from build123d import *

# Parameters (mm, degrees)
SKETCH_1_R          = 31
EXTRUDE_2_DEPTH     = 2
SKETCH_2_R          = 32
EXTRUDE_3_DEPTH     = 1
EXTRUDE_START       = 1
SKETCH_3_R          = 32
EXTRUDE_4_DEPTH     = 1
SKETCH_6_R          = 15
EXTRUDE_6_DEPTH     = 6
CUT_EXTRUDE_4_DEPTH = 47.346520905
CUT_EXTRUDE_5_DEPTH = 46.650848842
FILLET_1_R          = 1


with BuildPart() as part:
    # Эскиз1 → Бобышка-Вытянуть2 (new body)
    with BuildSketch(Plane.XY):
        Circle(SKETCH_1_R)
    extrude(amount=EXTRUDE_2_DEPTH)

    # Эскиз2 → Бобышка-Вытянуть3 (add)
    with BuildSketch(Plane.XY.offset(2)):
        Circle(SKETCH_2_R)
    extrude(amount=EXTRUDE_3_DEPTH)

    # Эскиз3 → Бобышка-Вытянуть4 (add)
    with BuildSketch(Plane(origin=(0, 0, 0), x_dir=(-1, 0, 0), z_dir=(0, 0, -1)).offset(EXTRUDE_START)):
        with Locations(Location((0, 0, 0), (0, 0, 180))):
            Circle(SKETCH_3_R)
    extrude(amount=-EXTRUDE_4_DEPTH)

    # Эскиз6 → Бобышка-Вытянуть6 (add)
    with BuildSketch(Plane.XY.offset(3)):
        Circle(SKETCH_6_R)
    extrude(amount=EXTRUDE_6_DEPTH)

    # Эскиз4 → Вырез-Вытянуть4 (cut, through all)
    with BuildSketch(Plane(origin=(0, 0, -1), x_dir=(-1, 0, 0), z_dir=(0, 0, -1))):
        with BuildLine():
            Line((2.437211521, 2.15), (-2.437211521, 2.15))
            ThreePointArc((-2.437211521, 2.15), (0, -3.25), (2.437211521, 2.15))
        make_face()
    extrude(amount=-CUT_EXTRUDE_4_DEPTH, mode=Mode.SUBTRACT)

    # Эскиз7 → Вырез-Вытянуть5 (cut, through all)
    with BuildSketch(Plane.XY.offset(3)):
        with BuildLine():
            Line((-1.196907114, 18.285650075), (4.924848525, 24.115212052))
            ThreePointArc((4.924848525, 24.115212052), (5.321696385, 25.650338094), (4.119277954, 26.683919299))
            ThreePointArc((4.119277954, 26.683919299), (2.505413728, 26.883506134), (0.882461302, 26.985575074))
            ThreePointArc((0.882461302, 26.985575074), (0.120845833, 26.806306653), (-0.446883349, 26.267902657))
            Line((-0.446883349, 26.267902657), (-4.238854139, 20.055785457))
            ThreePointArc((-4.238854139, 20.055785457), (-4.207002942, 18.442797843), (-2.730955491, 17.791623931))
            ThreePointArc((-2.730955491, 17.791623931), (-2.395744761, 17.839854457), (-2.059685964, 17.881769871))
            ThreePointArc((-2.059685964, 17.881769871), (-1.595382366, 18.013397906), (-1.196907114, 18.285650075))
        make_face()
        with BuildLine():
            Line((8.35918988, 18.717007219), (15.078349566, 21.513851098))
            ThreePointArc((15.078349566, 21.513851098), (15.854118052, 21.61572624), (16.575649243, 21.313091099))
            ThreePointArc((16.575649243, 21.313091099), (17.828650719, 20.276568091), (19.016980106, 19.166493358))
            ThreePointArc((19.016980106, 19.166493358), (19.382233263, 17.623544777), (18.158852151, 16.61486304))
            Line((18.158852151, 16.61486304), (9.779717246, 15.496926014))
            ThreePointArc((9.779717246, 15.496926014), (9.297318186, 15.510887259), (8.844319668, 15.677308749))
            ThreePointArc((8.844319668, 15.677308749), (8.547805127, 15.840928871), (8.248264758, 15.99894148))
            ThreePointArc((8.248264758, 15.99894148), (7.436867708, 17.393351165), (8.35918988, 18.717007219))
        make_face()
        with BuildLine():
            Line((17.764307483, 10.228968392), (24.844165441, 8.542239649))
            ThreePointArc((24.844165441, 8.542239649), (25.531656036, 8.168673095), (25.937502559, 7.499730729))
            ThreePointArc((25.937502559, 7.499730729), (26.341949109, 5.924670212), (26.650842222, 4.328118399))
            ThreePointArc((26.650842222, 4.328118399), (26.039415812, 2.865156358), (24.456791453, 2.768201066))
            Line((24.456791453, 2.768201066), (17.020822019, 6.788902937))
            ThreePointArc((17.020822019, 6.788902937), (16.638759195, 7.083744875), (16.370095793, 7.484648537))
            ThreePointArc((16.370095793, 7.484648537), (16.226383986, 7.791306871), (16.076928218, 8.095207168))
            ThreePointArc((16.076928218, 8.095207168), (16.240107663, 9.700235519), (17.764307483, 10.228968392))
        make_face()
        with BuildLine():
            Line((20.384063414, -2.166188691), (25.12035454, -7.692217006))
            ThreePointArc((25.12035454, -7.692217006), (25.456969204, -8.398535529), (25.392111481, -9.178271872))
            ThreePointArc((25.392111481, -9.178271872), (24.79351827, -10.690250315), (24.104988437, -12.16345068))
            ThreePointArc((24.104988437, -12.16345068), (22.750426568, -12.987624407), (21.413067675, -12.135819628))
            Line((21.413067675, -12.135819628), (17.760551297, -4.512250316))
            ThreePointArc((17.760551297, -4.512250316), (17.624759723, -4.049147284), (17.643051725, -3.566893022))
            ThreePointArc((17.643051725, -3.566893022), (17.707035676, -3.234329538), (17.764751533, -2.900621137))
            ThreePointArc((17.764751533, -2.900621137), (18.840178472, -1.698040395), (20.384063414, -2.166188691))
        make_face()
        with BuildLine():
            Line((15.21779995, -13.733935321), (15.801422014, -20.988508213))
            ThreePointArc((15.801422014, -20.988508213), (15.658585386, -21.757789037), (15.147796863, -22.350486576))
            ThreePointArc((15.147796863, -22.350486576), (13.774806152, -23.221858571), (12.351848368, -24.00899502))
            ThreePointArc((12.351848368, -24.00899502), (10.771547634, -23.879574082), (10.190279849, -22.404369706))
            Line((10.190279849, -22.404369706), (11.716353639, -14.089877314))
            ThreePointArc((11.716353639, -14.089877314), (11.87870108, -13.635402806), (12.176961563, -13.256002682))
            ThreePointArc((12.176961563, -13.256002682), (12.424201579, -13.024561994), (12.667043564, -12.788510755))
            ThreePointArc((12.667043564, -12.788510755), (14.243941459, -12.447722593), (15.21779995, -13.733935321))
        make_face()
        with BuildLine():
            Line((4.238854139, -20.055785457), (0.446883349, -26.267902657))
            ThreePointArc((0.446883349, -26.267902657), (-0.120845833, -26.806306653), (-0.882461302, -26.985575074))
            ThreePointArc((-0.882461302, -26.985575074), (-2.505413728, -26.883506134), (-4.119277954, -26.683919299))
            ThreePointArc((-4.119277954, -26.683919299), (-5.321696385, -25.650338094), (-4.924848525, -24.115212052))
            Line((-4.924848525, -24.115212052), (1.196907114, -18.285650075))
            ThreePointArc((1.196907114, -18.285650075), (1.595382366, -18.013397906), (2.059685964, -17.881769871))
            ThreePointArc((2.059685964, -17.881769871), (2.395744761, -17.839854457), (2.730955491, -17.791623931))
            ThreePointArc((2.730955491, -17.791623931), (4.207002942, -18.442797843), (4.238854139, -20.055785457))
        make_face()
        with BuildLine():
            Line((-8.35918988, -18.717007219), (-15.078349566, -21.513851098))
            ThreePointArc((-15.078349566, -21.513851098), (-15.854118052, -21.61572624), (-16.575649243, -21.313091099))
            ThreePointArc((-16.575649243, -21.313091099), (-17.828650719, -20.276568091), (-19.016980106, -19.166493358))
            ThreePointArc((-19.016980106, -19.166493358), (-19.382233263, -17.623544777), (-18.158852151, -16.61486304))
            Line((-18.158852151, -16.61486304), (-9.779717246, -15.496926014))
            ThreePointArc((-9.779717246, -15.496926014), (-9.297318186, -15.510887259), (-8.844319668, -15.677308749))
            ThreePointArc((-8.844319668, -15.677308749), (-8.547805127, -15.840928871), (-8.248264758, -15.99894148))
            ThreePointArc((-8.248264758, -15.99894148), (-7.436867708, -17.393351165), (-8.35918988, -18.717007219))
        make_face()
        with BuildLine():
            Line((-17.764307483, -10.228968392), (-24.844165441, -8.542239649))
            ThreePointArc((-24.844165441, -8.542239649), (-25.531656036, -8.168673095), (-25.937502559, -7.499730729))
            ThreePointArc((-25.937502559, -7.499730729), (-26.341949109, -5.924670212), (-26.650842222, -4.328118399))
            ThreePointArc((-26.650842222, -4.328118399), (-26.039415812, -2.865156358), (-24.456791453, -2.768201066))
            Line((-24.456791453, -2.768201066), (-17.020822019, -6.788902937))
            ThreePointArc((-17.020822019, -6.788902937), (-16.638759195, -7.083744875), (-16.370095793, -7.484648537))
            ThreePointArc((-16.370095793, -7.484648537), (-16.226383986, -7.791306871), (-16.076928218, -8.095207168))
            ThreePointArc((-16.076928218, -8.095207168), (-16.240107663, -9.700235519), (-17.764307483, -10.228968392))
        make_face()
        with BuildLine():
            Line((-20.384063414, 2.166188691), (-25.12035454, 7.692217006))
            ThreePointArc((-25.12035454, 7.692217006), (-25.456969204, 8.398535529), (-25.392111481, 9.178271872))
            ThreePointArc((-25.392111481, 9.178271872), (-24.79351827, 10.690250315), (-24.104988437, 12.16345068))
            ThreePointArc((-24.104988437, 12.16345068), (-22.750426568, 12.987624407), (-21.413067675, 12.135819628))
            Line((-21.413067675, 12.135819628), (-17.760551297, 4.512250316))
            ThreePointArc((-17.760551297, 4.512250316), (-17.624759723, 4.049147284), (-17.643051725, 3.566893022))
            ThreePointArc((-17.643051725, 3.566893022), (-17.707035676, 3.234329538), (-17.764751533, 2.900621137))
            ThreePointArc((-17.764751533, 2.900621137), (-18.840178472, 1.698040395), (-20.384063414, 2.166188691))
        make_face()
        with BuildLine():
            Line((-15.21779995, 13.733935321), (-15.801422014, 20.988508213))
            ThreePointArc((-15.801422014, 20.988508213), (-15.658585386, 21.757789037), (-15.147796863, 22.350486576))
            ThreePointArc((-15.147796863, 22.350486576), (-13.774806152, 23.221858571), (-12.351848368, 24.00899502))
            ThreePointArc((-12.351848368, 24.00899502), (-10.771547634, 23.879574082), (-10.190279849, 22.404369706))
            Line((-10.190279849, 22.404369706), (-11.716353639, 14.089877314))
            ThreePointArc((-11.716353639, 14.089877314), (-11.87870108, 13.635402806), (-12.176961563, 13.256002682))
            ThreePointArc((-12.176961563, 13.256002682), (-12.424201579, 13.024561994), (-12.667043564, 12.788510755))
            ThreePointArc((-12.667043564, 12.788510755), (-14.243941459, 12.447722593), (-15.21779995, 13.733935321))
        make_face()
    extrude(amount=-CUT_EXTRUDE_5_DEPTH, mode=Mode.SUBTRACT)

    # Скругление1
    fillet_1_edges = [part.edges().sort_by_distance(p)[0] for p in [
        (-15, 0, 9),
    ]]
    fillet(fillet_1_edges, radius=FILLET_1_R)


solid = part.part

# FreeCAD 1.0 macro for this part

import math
import FreeCAD as App
import Part
import Sketcher

V = App.Vector


def edges_at(feature, points):
    """Names of the edges that pass closest to the given points."""
    edges = feature.Shape.Edges
    near = lambda p: min(range(len(edges)), key=lambda i: edges[i].distToShape(Part.Vertex(*p))[0])
    return sorted({f"Edge{near(p) + 1}" for p in points})

doc = App.newDocument("Part")
params = doc.addObject("Spreadsheet::Sheet", "Params")
for row, (alias, value) in enumerate([
    ("sketch1_diameter", "62 mm"),
    ("pad1_length", "2 mm"),
    ("sketch2_diameter", "64 mm"),
    ("pad2_length", "1 mm"),
    ("sketch3_diameter", "64 mm"),
    ("pad3_length", "1 mm"),
    ("sketch4_diameter", "30 mm"),
    ("pad4_length", "6 mm"),
    ("sketch5_radius", "3.25 mm"),
    ("sketch6_radius", "27 mm"),
    ("sketch6_radius2", "17.999998 mm"),
    ("sketch6_radius3", "1.5 mm"),
    ("fillet_radius", "1 mm"),
], start=1):
    params.set(f"A{row}", alias)
    params.set(f"B{row}", "=" + value)
    params.setAlias(f"B{row}", alias)

body = doc.addObject("PartDesign::Body", "Body")

# Sketch on XY plane
sketch1 = body.newObject("Sketcher::SketchObject", "Sketch")
sketch1.AttachmentSupport = (doc.getObject("XY_Plane"), [""])
sketch1.MapMode = "FlatFace"
sketch1.addGeometry(Part.Circle(V(0, 0, 0), V(0, 0, 1), 31), False)
sketch1.addConstraint([
    Sketcher.Constraint("Coincident", 0, 3, -1, 1),
    Sketcher.Constraint("Diameter", 0, 62.0),
])
sketch1.setExpression("Constraints[1]", "Params.sketch1_diameter")
pad1 = body.newObject("PartDesign::Pad", "Pad")
pad1.Profile = sketch1
pad1.setExpression("Length", "Params.pad1_length")

# Sketch on XY plane
sketch2 = body.newObject("Sketcher::SketchObject", "Sketch001")
sketch2.AttachmentSupport = (doc.getObject("XY_Plane"), [""])
sketch2.MapMode = "FlatFace"
sketch2.AttachmentOffset = App.Placement(V(0, 0, 2), App.Rotation())
sketch2.addGeometry(Part.Circle(V(0, 0, 0), V(0, 0, 1), 32), False)
sketch2.addConstraint([
    Sketcher.Constraint("Coincident", 0, 3, -1, 1),
    Sketcher.Constraint("Diameter", 0, 64.0),
])
sketch2.setExpression("Constraints[1]", "Params.sketch2_diameter")
pad2 = body.newObject("PartDesign::Pad", "Pad001")
pad2.Profile = sketch2
pad2.setExpression("Length", "Params.pad2_length")

# Sketch on XY plane
sketch3 = body.newObject("Sketcher::SketchObject", "Sketch002")
sketch3.AttachmentSupport = (doc.getObject("XY_Plane"), [""])
sketch3.MapMode = "FlatFace"
sketch3.AttachmentOffset = App.Placement(V(0, 0, -1), App.Rotation())
sketch3.addGeometry(Part.Circle(V(0, 0, 0), V(0, 0, 1), 32), False)
sketch3.addConstraint([
    Sketcher.Constraint("Coincident", 0, 3, -1, 1),
    Sketcher.Constraint("Diameter", 0, 64.0),
])
sketch3.setExpression("Constraints[1]", "Params.sketch3_diameter")
pad3 = body.newObject("PartDesign::Pad", "Pad002")
pad3.Profile = sketch3
pad3.setExpression("Length", "Params.pad3_length")

# Sketch on XY plane
sketch4 = body.newObject("Sketcher::SketchObject", "Sketch003")
sketch4.AttachmentSupport = (doc.getObject("XY_Plane"), [""])
sketch4.MapMode = "FlatFace"
sketch4.AttachmentOffset = App.Placement(V(0, 0, 3), App.Rotation())
sketch4.addGeometry(Part.Circle(V(0, 0, 0), V(0, 0, 1), 15), False)
sketch4.addConstraint([
    Sketcher.Constraint("Coincident", 0, 3, -1, 1),
    Sketcher.Constraint("Diameter", 0, 30.0),
])
sketch4.setExpression("Constraints[1]", "Params.sketch4_diameter")
pad4 = body.newObject("PartDesign::Pad", "Pad003")
pad4.Profile = sketch4
pad4.setExpression("Length", "Params.pad4_length")

# Sketch on XY plane
sketch5 = body.newObject("Sketcher::SketchObject", "Sketch004")
sketch5.AttachmentSupport = (doc.getObject("XY_Plane"), [""])
sketch5.MapMode = "FlatFace"
sketch5.AttachmentOffset = App.Placement(V(0, 0, -1), App.Rotation())
sketch5.addGeometry([
    Part.LineSegment(V(-2.4, 2.1, 0), V(2.4, 2.1, 0)),
    Part.ArcOfCircle(Part.Circle(V(0, 0, 0), V(0, 0, 1), 3.2), math.radians(139), math.radians(401)),
], False)
sketch5.addConstraint([
    Sketcher.Constraint("Coincident", 0, 1, 1, 1),
    Sketcher.Constraint("Coincident", 1, 2, 0, 2),
    Sketcher.Constraint("Horizontal", 0),
    Sketcher.Constraint("Coincident", 1, 3, -1, 1),
    Sketcher.Constraint("Radius", 1, 3.25),
    Sketcher.Constraint("DistanceY", -1, 1, 0, 1, 2.15),
])
sketch5.setExpression("Constraints[4]", "Params.sketch5_radius")
pocket1 = body.newObject("PartDesign::Pocket", "Pocket")
pocket1.Profile = sketch5
pocket1.Type = "ThroughAll"
pocket1.Reversed = True

# Sketch on XY plane
sketch6 = body.newObject("Sketcher::SketchObject", "Sketch005")
sketch6.AttachmentSupport = (doc.getObject("XY_Plane"), [""])
sketch6.MapMode = "FlatFace"
sketch6.AttachmentOffset = App.Placement(V(0, 0, 3), App.Rotation())
sketch6.addGeometry([
    Part.LineSegment(V(-1.2, 18.3, 0), V(4.9, 24.1, 0)),  # 0
    Part.ArcOfCircle(Part.Circle(V(3.9, 25.2, 0), V(0, 0, 1), 1.5), math.radians(-46), math.radians(81)),  # 1
    Part.ArcOfCircle(Part.Circle(V(0, 0, 0), V(0, 0, 1), 27), math.radians(81.22), math.radians(88.13)),  # 2
    Part.ArcOfCircle(Part.Circle(V(0.8, 25.5, 0), V(0, 0, 1), 1.5), math.radians(88), math.radians(149)),  # 3
    Part.LineSegment(V(-0.4, 26.3, 0), V(-4.2, 20.1, 0)),  # 4
    Part.ArcOfCircle(Part.Circle(V(-3, 19.3, 0), V(0, 0, 1), 1.5), math.radians(149), math.radians(279)),  # 5
    Part.ArcOfCircle(Part.Circle(V(0, 0, 0), V(0, 0, 1), 18), math.radians(96.57), math.radians(98.73)),  # 6
    Part.ArcOfCircle(Part.Circle(V(-2.2, 19.4, 0), V(0, 0, 1), 1.5), math.radians(-83), math.radians(-46)),  # 7
    Part.LineSegment(V(15.1, 21.5, 0), V(8.4, 18.7, 0)),  # 8
    Part.ArcOfCircle(Part.Circle(V(8.9, 17.3, 0), V(0, 0, 1), 1.5), math.radians(113), math.radians(243)),  # 9
    Part.ArcOfCircle(Part.Circle(V(0, 0, 0), V(0, 0, 1), 18), math.radians(60.57), math.radians(62.73)),  # 10
    Part.ArcOfCircle(Part.Circle(V(9.6, 17, 0), V(0, 0, 1), 1.5), math.radians(-119), math.radians(-82)),  # 11
    Part.LineSegment(V(9.8, 15.5, 0), V(18.2, 16.6, 0)),  # 12
    Part.ArcOfCircle(Part.Circle(V(18, 18.1, 0), V(0, 0, 1), 1.5), math.radians(-82), math.radians(45)),  # 13
    Part.ArcOfCircle(Part.Circle(V(0, 0, 0), V(0, 0, 1), 27), math.radians(45.22), math.radians(52.13)),  # 14
    Part.ArcOfCircle(Part.Circle(V(15.7, 20.1, 0), V(0, 0, 1), 1.5), math.radians(52), math.radians(113)),  # 15
    Part.LineSegment(V(24.8, 8.5, 0), V(17.8, 10.2, 0)),  # 16
    Part.ArcOfCircle(Part.Circle(V(17.4, 8.8, 0), V(0, 0, 1), 1.5), math.radians(77), math.radians(207)),  # 17
    Part.ArcOfCircle(Part.Circle(V(0, 0, 0), V(0, 0, 1), 18), math.radians(24.57), math.radians(26.73)),  # 18
    Part.ArcOfCircle(Part.Circle(V(17.7, 8.1, 0), V(0, 0, 1), 1.5), math.radians(-155), math.radians(-118)),  # 19
    Part.LineSegment(V(17, 6.8, 0), V(24.5, 2.8, 0)),  # 20
    Part.ArcOfCircle(Part.Circle(V(25.2, 4.1, 0), V(0, 0, 1), 1.5), math.radians(-118), math.radians(9)),  # 21
    Part.ArcOfCircle(Part.Circle(V(0, 0, 0), V(0, 0, 1), 27), math.radians(9.22), math.radians(16.13)),  # 22
    Part.ArcOfCircle(Part.Circle(V(24.5, 7.1, 0), V(0, 0, 1), 1.5), math.radians(16), math.radians(77)),  # 23
    Part.LineSegment(V(25.1, -7.7, 0), V(20.4, -2.2, 0)),  # 24
    Part.ArcOfCircle(Part.Circle(V(19.2, -3.1, 0), V(0, 0, 1), 1.5), math.radians(41), math.radians(171)),  # 25
    Part.ArcOfCircle(Part.Circle(V(0, 0, 0), V(0, 0, 1), 18), math.radians(-11.43), math.radians(-9.27)),  # 26
    Part.ArcOfCircle(Part.Circle(V(19.1, -3.9, 0), V(0, 0, 1), 1.5), math.radians(169), math.radians(206)),  # 27
    Part.LineSegment(V(17.8, -4.5, 0), V(21.4, -12.1, 0)),  # 28
    Part.ArcOfCircle(Part.Circle(V(22.8, -11.5, 0), V(0, 0, 1), 1.5), math.radians(-154), math.radians(-27)),  # 29
    Part.ArcOfCircle(Part.Circle(V(0, 0, 0), V(0, 0, 1), 27), math.radians(-26.78), math.radians(-19.87)),  # 30
    Part.ArcOfCircle(Part.Circle(V(24, -8.7, 0), V(0, 0, 1), 1.5), math.radians(-20), math.radians(41)),  # 31
    Part.LineSegment(V(15.8, -21, 0), V(15.2, -13.7, 0)),  # 32
    Part.ArcOfCircle(Part.Circle(V(13.7, -13.9, 0), V(0, 0, 1), 1.5), math.radians(5), math.radians(135)),  # 33
    Part.ArcOfCircle(Part.Circle(V(0, 0, 0), V(0, 0, 1), 18), math.radians(-47.43), math.radians(-45.27)),  # 34
    Part.ArcOfCircle(Part.Circle(V(13.2, -14.4, 0), V(0, 0, 1), 1.5), math.radians(133), math.radians(170)),  # 35
    Part.LineSegment(V(11.7, -14.1, 0), V(10.2, -22.4, 0)),  # 36
    Part.ArcOfCircle(Part.Circle(V(11.7, -22.7, 0), V(0, 0, 1), 1.5), math.radians(170), math.radians(297)),  # 37
    Part.ArcOfCircle(Part.Circle(V(0, 0, 0), V(0, 0, 1), 27), math.radians(-62.78), math.radians(-55.87)),  # 38
    Part.ArcOfCircle(Part.Circle(V(14.3, -21.1, 0), V(0, 0, 1), 1.5), math.radians(-56), math.radians(5)),  # 39
    Part.LineSegment(V(0.4, -26.3, 0), V(4.2, -20.1, 0)),  # 40
    Part.ArcOfCircle(Part.Circle(V(3, -19.3, 0), V(0, 0, 1), 1.5), math.radians(-31), math.radians(99)),  # 41
    Part.ArcOfCircle(Part.Circle(V(0, 0, 0), V(0, 0, 1), 18), math.radians(-83.43), math.radians(-81.27)),  # 42
    Part.ArcOfCircle(Part.Circle(V(2.2, -19.4, 0), V(0, 0, 1), 1.5), math.radians(97), math.radians(134)),  # 43
    Part.LineSegment(V(1.2, -18.3, 0), V(-4.9, -24.1, 0)),  # 44
    Part.ArcOfCircle(Part.Circle(V(-3.9, -25.2, 0), V(0, 0, 1), 1.5), math.radians(134), math.radians(261)),  # 45
    Part.ArcOfCircle(Part.Circle(V(0, 0, 0), V(0, 0, 1), 27), math.radians(-98.78), math.radians(-91.87)),  # 46
    Part.ArcOfCircle(Part.Circle(V(-0.8, -25.5, 0), V(0, 0, 1), 1.5), math.radians(-92), math.radians(-31)),  # 47
    Part.LineSegment(V(-15.1, -21.5, 0), V(-8.4, -18.7, 0)),  # 48
    Part.ArcOfCircle(Part.Circle(V(-8.9, -17.3, 0), V(0, 0, 1), 1.5), math.radians(-67), math.radians(63)),  # 49
    Part.ArcOfCircle(Part.Circle(V(0, 0, 0), V(0, 0, 1), 18), math.radians(-119.43), math.radians(-117.27)),  # 50
    Part.ArcOfCircle(Part.Circle(V(-9.6, -17, 0), V(0, 0, 1), 1.5), math.radians(61), math.radians(98)),  # 51
    Part.LineSegment(V(-9.8, -15.5, 0), V(-18.2, -16.6, 0)),  # 52
    Part.ArcOfCircle(Part.Circle(V(-18, -18.1, 0), V(0, 0, 1), 1.5), math.radians(98), math.radians(225)),  # 53
    Part.ArcOfCircle(Part.Circle(V(0, 0, 0), V(0, 0, 1), 27), math.radians(-134.78), math.radians(-127.87)),  # 54
    Part.ArcOfCircle(Part.Circle(V(-15.7, -20.1, 0), V(0, 0, 1), 1.5), math.radians(-128), math.radians(-67)),  # 55
    Part.LineSegment(V(-24.8, -8.5, 0), V(-17.8, -10.2, 0)),  # 56
    Part.ArcOfCircle(Part.Circle(V(-17.4, -8.8, 0), V(0, 0, 1), 1.5), math.radians(-103), math.radians(27)),  # 57
    Part.ArcOfCircle(Part.Circle(V(0, 0, 0), V(0, 0, 1), 18), math.radians(-155.43), math.radians(-153.27)),  # 58
    Part.ArcOfCircle(Part.Circle(V(-17.7, -8.1, 0), V(0, 0, 1), 1.5), math.radians(25), math.radians(62)),  # 59
    Part.LineSegment(V(-17, -6.8, 0), V(-24.5, -2.8, 0)),  # 60
    Part.ArcOfCircle(Part.Circle(V(-25.2, -4.1, 0), V(0, 0, 1), 1.5), math.radians(62), math.radians(189)),  # 61
    Part.ArcOfCircle(Part.Circle(V(0, 0, 0), V(0, 0, 1), 27), math.radians(-170.78), math.radians(-163.87)),  # 62
    Part.ArcOfCircle(Part.Circle(V(-24.5, -7.1, 0), V(0, 0, 1), 1.5), math.radians(-164), math.radians(-103)),  # 63
    Part.LineSegment(V(-25.1, 7.7, 0), V(-20.4, 2.2, 0)),  # 64
    Part.ArcOfCircle(Part.Circle(V(-19.2, 3.1, 0), V(0, 0, 1), 1.5), math.radians(-139), math.radians(-9)),  # 65
    Part.ArcOfCircle(Part.Circle(V(0, 0, 0), V(0, 0, 1), 18), math.radians(168.57), math.radians(170.73)),  # 66
    Part.ArcOfCircle(Part.Circle(V(-19.1, 3.9, 0), V(0, 0, 1), 1.5), math.radians(-11), math.radians(26)),  # 67
    Part.LineSegment(V(-17.8, 4.5, 0), V(-21.4, 12.1, 0)),  # 68
    Part.ArcOfCircle(Part.Circle(V(-22.8, 11.5, 0), V(0, 0, 1), 1.5), math.radians(26), math.radians(153)),  # 69
    Part.ArcOfCircle(Part.Circle(V(0, 0, 0), V(0, 0, 1), 27), math.radians(153.22), math.radians(160.13)),  # 70
    Part.ArcOfCircle(Part.Circle(V(-24, 8.7, 0), V(0, 0, 1), 1.5), math.radians(160), math.radians(221)),  # 71
    Part.LineSegment(V(-15.8, 21, 0), V(-15.2, 13.7, 0)),  # 72
    Part.ArcOfCircle(Part.Circle(V(-13.7, 13.9, 0), V(0, 0, 1), 1.5), math.radians(-175), math.radians(-45)),  # 73
    Part.ArcOfCircle(Part.Circle(V(0, 0, 0), V(0, 0, 1), 18), math.radians(132.57), math.radians(134.73)),  # 74
    Part.ArcOfCircle(Part.Circle(V(-13.2, 14.4, 0), V(0, 0, 1), 1.5), math.radians(-47), math.radians(-10)),  # 75
    Part.LineSegment(V(-11.7, 14.1, 0), V(-10.2, 22.4, 0)),  # 76
    Part.ArcOfCircle(Part.Circle(V(-11.7, 22.7, 0), V(0, 0, 1), 1.5), math.radians(-10), math.radians(117)),  # 77
    Part.ArcOfCircle(Part.Circle(V(0, 0, 0), V(0, 0, 1), 27), math.radians(117.22), math.radians(124.13)),  # 78
    Part.ArcOfCircle(Part.Circle(V(-14.3, 21.1, 0), V(0, 0, 1), 1.5), math.radians(124), math.radians(185)),  # 79
], False)
sketch6.addConstraint([
    Sketcher.Constraint("Tangent", 0, 2, 1, 1),
    Sketcher.Constraint("Tangent", 1, 2, 2, 1),
    Sketcher.Constraint("Tangent", 2, 2, 3, 1),
    Sketcher.Constraint("Tangent", 3, 2, 4, 1),
    Sketcher.Constraint("Tangent", 4, 2, 5, 1),
    Sketcher.Constraint("Tangent", 5, 2, 6, 2),
    Sketcher.Constraint("Tangent", 6, 1, 7, 1),
    Sketcher.Constraint("Tangent", 7, 2, 0, 1),
    Sketcher.Constraint("Tangent", 8, 2, 9, 1),
    Sketcher.Constraint("Tangent", 9, 2, 10, 2),
    Sketcher.Constraint("Tangent", 10, 1, 11, 1),
    Sketcher.Constraint("Tangent", 11, 2, 12, 1),
    Sketcher.Constraint("Tangent", 12, 2, 13, 1),
    Sketcher.Constraint("Tangent", 13, 2, 14, 1),
    Sketcher.Constraint("Tangent", 14, 2, 15, 1),
    Sketcher.Constraint("Tangent", 15, 2, 8, 1),
    Sketcher.Constraint("Tangent", 16, 2, 17, 1),
    Sketcher.Constraint("Tangent", 17, 2, 18, 2),
    Sketcher.Constraint("Tangent", 18, 1, 19, 1),
    Sketcher.Constraint("Tangent", 19, 2, 20, 1),
    Sketcher.Constraint("Tangent", 20, 2, 21, 1),
    Sketcher.Constraint("Tangent", 21, 2, 22, 1),
    Sketcher.Constraint("Tangent", 22, 2, 23, 1),
    Sketcher.Constraint("Tangent", 23, 2, 16, 1),
    Sketcher.Constraint("Tangent", 24, 2, 25, 1),
    Sketcher.Constraint("Tangent", 25, 2, 26, 2),
    Sketcher.Constraint("Tangent", 26, 1, 27, 1),
    Sketcher.Constraint("Tangent", 27, 2, 28, 1),
    Sketcher.Constraint("Tangent", 28, 2, 29, 1),
    Sketcher.Constraint("Tangent", 29, 2, 30, 1),
    Sketcher.Constraint("Tangent", 30, 2, 31, 1),
    Sketcher.Constraint("Tangent", 31, 2, 24, 1),
    Sketcher.Constraint("Tangent", 32, 2, 33, 1),
    Sketcher.Constraint("Tangent", 33, 2, 34, 2),
    Sketcher.Constraint("Tangent", 34, 1, 35, 1),
    Sketcher.Constraint("Tangent", 35, 2, 36, 1),
    Sketcher.Constraint("Tangent", 36, 2, 37, 1),
    Sketcher.Constraint("Tangent", 37, 2, 38, 1),
    Sketcher.Constraint("Tangent", 38, 2, 39, 1),
    Sketcher.Constraint("Tangent", 39, 2, 32, 1),
    Sketcher.Constraint("Tangent", 40, 2, 41, 1),
    Sketcher.Constraint("Tangent", 41, 2, 42, 2),
    Sketcher.Constraint("Tangent", 42, 1, 43, 1),
    Sketcher.Constraint("Tangent", 43, 2, 44, 1),
    Sketcher.Constraint("Tangent", 44, 2, 45, 1),
    Sketcher.Constraint("Tangent", 45, 2, 46, 1),
    Sketcher.Constraint("Tangent", 46, 2, 47, 1),
    Sketcher.Constraint("Tangent", 47, 2, 40, 1),
    Sketcher.Constraint("Tangent", 48, 2, 49, 1),
    Sketcher.Constraint("Tangent", 49, 2, 50, 2),
    Sketcher.Constraint("Tangent", 50, 1, 51, 1),
    Sketcher.Constraint("Tangent", 51, 2, 52, 1),
    Sketcher.Constraint("Tangent", 52, 2, 53, 1),
    Sketcher.Constraint("Tangent", 53, 2, 54, 1),
    Sketcher.Constraint("Tangent", 54, 2, 55, 1),
    Sketcher.Constraint("Tangent", 55, 2, 48, 1),
    Sketcher.Constraint("Tangent", 56, 2, 57, 1),
    Sketcher.Constraint("Tangent", 57, 2, 58, 2),
    Sketcher.Constraint("Tangent", 58, 1, 59, 1),
    Sketcher.Constraint("Tangent", 59, 2, 60, 1),
    Sketcher.Constraint("Tangent", 60, 2, 61, 1),
    Sketcher.Constraint("Tangent", 61, 2, 62, 1),
    Sketcher.Constraint("Tangent", 62, 2, 63, 1),
    Sketcher.Constraint("Tangent", 63, 2, 56, 1),
    Sketcher.Constraint("Tangent", 64, 2, 65, 1),
    Sketcher.Constraint("Tangent", 65, 2, 66, 2),
    Sketcher.Constraint("Tangent", 66, 1, 67, 1),
    Sketcher.Constraint("Tangent", 67, 2, 68, 1),
    Sketcher.Constraint("Tangent", 68, 2, 69, 1),
    Sketcher.Constraint("Tangent", 69, 2, 70, 1),
    Sketcher.Constraint("Tangent", 70, 2, 71, 1),
    Sketcher.Constraint("Tangent", 71, 2, 64, 1),
    Sketcher.Constraint("Tangent", 72, 2, 73, 1),
    Sketcher.Constraint("Tangent", 73, 2, 74, 2),
    Sketcher.Constraint("Tangent", 74, 1, 75, 1),
    Sketcher.Constraint("Tangent", 75, 2, 76, 1),
    Sketcher.Constraint("Tangent", 76, 2, 77, 1),
    Sketcher.Constraint("Tangent", 77, 2, 78, 1),
    Sketcher.Constraint("Tangent", 78, 2, 79, 1),
    Sketcher.Constraint("Tangent", 79, 2, 72, 1),
    Sketcher.Constraint("Coincident", 2, 3, -1, 1),
    Sketcher.Constraint("Coincident", 6, 3, -1, 1),
    Sketcher.Constraint("Coincident", 10, 3, -1, 1),
    Sketcher.Constraint("Coincident", 14, 3, -1, 1),
    Sketcher.Constraint("Coincident", 18, 3, -1, 1),
    Sketcher.Constraint("Coincident", 22, 3, -1, 1),
    Sketcher.Constraint("Coincident", 26, 3, -1, 1),
    Sketcher.Constraint("Coincident", 30, 3, -1, 1),
    Sketcher.Constraint("Coincident", 34, 3, -1, 1),
    Sketcher.Constraint("Coincident", 38, 3, -1, 1),
    Sketcher.Constraint("Coincident", 42, 3, -1, 1),
    Sketcher.Constraint("Coincident", 46, 3, -1, 1),
    Sketcher.Constraint("Coincident", 50, 3, -1, 1),
    Sketcher.Constraint("Coincident", 54, 3, -1, 1),
    Sketcher.Constraint("Coincident", 58, 3, -1, 1),
    Sketcher.Constraint("Coincident", 62, 3, -1, 1),
    Sketcher.Constraint("Coincident", 66, 3, -1, 1),
    Sketcher.Constraint("Coincident", 70, 3, -1, 1),
    Sketcher.Constraint("Coincident", 74, 3, -1, 1),
    Sketcher.Constraint("Coincident", 78, 3, -1, 1),
    Sketcher.Constraint("Equal", 1, 3),
    Sketcher.Constraint("Equal", 3, 5),
    Sketcher.Constraint("Equal", 5, 7),
    Sketcher.Constraint("Equal", 7, 9),
    Sketcher.Constraint("Equal", 9, 11),
    Sketcher.Constraint("Equal", 11, 13),
    Sketcher.Constraint("Equal", 2, 14),
    Sketcher.Constraint("Equal", 13, 15),
    Sketcher.Constraint("Equal", 15, 17),
    Sketcher.Constraint("Equal", 6, 18),
    Sketcher.Constraint("Equal", 17, 19),
    Sketcher.Constraint("Equal", 19, 21),
    Sketcher.Constraint("Equal", 14, 22),
    Sketcher.Constraint("Equal", 21, 23),
    Sketcher.Constraint("Equal", 23, 25),
    Sketcher.Constraint("Equal", 10, 26),
    Sketcher.Constraint("Equal", 25, 27),
    Sketcher.Constraint("Equal", 27, 29),
    Sketcher.Constraint("Equal", 22, 30),
    Sketcher.Constraint("Equal", 29, 31),
    Sketcher.Constraint("Equal", 31, 33),
    Sketcher.Constraint("Equal", 18, 34),
    Sketcher.Constraint("Equal", 33, 35),
    Sketcher.Constraint("Equal", 35, 37),
    Sketcher.Constraint("Equal", 30, 38),
    Sketcher.Constraint("Equal", 37, 39),
    Sketcher.Constraint("Equal", 39, 41),
    Sketcher.Constraint("Equal", 34, 42),
    Sketcher.Constraint("Equal", 41, 43),
    Sketcher.Constraint("Equal", 43, 45),
    Sketcher.Constraint("Equal", 38, 46),
    Sketcher.Constraint("Equal", 45, 47),
    Sketcher.Constraint("Equal", 47, 49),
    Sketcher.Constraint("Equal", 26, 50),
    Sketcher.Constraint("Equal", 49, 51),
    Sketcher.Constraint("Equal", 51, 53),
    Sketcher.Constraint("Equal", 46, 54),
    Sketcher.Constraint("Equal", 53, 55),
    Sketcher.Constraint("Equal", 55, 57),
    Sketcher.Constraint("Equal", 42, 58),
    Sketcher.Constraint("Equal", 57, 59),
    Sketcher.Constraint("Equal", 59, 61),
    Sketcher.Constraint("Equal", 54, 62),
    Sketcher.Constraint("Equal", 61, 63),
    Sketcher.Constraint("Equal", 63, 65),
    Sketcher.Constraint("Equal", 50, 66),
    Sketcher.Constraint("Equal", 65, 67),
    Sketcher.Constraint("Equal", 67, 69),
    Sketcher.Constraint("Equal", 62, 70),
    Sketcher.Constraint("Equal", 69, 71),
    Sketcher.Constraint("Equal", 71, 73),
    Sketcher.Constraint("Equal", 58, 74),
    Sketcher.Constraint("Equal", 73, 75),
    Sketcher.Constraint("Equal", 75, 77),
    Sketcher.Constraint("Equal", 70, 78),
    Sketcher.Constraint("Equal", 77, 79),
    Sketcher.Constraint("Symmetric", 4, 2, 40, 2, -1, 1),
    Sketcher.Constraint("Symmetric", 7, 2, 43, 2, -1, 1),
    Sketcher.Constraint("Symmetric", 8, 2, 48, 2, -1, 1),
    Sketcher.Constraint("Symmetric", 11, 2, 51, 2, -1, 1),
    Sketcher.Constraint("Symmetric", 16, 2, 56, 2, -1, 1),
    Sketcher.Constraint("Symmetric", 19, 2, 59, 2, -1, 1),
    Sketcher.Constraint("Symmetric", 24, 2, 64, 2, -1, 1),
    Sketcher.Constraint("Symmetric", 27, 2, 67, 2, -1, 1),
    Sketcher.Constraint("Symmetric", 32, 2, 72, 2, -1, 1),
    Sketcher.Constraint("Symmetric", 35, 2, 75, 2, -1, 1),
    Sketcher.Constraint("Equal", 4, 8),
    Sketcher.Constraint("Equal", 0, 12),
    Sketcher.Constraint("Equal", 8, 16),
    Sketcher.Constraint("Equal", 12, 20),
    Sketcher.Constraint("Equal", 16, 24),
    Sketcher.Constraint("Equal", 20, 28),
    Sketcher.Constraint("Equal", 24, 32),
    Sketcher.Constraint("Equal", 28, 36),
    Sketcher.Constraint("Radius", 2, 27.0),
    Sketcher.Constraint("Radius", 18, 17.999998),
    Sketcher.Constraint("Radius", 1, 1.5),
    Sketcher.Constraint("Radius", 10, 18.000002),
    Sketcher.Constraint("DistanceY", -1, 1, 20, 2, 2.768201),
    Sketcher.Constraint("DistanceX", -1, 1, 32, 2, 15.2178),
    Sketcher.Constraint("Distance", 4, 7.278011),
    Sketcher.Constraint("DistanceX", -1, 1, 1, 3, 3.890429),
    Sketcher.Constraint("DistanceY", -1, 1, 5, 3, 19.274259),
    Sketcher.Constraint("DistanceX", -1, 1, 9, 3, 8.93562),
    Sketcher.Constraint("DistanceY", -1, 1, 11, 3, 16.983751),
    Sketcher.Constraint("DistanceX", -1, 1, 13, 3, 17.960481),
    Sketcher.Constraint("DistanceX", -1, 1, 23, 3, 24.49653),
    Sketcher.Constraint("DistanceY", 25, 3, -1, 1, 3.14234),
    Sketcher.Constraint("DistanceX", -1, 1, 35, 3, 13.191708),
    Sketcher.Constraint("DistanceX", -1, 1, 26, 1, 17.643052),
])
sketch6.setExpression("Constraints[174]", "Params.sketch6_radius")
sketch6.setExpression("Constraints[175]", "Params.sketch6_radius2")
sketch6.setExpression("Constraints[176]", "Params.sketch6_radius3")
pocket2 = body.newObject("PartDesign::Pocket", "Pocket001")
pocket2.Profile = sketch6
pocket2.Type = "ThroughAll"
doc.recompute()

fillet = body.newObject("PartDesign::Fillet", "Fillet")
fillet.Base = (pocket2, edges_at(pocket2, [(-15, 0, 9)]))
fillet.setExpression("Radius", "Params.fillet_radius")

doc.recompute()
